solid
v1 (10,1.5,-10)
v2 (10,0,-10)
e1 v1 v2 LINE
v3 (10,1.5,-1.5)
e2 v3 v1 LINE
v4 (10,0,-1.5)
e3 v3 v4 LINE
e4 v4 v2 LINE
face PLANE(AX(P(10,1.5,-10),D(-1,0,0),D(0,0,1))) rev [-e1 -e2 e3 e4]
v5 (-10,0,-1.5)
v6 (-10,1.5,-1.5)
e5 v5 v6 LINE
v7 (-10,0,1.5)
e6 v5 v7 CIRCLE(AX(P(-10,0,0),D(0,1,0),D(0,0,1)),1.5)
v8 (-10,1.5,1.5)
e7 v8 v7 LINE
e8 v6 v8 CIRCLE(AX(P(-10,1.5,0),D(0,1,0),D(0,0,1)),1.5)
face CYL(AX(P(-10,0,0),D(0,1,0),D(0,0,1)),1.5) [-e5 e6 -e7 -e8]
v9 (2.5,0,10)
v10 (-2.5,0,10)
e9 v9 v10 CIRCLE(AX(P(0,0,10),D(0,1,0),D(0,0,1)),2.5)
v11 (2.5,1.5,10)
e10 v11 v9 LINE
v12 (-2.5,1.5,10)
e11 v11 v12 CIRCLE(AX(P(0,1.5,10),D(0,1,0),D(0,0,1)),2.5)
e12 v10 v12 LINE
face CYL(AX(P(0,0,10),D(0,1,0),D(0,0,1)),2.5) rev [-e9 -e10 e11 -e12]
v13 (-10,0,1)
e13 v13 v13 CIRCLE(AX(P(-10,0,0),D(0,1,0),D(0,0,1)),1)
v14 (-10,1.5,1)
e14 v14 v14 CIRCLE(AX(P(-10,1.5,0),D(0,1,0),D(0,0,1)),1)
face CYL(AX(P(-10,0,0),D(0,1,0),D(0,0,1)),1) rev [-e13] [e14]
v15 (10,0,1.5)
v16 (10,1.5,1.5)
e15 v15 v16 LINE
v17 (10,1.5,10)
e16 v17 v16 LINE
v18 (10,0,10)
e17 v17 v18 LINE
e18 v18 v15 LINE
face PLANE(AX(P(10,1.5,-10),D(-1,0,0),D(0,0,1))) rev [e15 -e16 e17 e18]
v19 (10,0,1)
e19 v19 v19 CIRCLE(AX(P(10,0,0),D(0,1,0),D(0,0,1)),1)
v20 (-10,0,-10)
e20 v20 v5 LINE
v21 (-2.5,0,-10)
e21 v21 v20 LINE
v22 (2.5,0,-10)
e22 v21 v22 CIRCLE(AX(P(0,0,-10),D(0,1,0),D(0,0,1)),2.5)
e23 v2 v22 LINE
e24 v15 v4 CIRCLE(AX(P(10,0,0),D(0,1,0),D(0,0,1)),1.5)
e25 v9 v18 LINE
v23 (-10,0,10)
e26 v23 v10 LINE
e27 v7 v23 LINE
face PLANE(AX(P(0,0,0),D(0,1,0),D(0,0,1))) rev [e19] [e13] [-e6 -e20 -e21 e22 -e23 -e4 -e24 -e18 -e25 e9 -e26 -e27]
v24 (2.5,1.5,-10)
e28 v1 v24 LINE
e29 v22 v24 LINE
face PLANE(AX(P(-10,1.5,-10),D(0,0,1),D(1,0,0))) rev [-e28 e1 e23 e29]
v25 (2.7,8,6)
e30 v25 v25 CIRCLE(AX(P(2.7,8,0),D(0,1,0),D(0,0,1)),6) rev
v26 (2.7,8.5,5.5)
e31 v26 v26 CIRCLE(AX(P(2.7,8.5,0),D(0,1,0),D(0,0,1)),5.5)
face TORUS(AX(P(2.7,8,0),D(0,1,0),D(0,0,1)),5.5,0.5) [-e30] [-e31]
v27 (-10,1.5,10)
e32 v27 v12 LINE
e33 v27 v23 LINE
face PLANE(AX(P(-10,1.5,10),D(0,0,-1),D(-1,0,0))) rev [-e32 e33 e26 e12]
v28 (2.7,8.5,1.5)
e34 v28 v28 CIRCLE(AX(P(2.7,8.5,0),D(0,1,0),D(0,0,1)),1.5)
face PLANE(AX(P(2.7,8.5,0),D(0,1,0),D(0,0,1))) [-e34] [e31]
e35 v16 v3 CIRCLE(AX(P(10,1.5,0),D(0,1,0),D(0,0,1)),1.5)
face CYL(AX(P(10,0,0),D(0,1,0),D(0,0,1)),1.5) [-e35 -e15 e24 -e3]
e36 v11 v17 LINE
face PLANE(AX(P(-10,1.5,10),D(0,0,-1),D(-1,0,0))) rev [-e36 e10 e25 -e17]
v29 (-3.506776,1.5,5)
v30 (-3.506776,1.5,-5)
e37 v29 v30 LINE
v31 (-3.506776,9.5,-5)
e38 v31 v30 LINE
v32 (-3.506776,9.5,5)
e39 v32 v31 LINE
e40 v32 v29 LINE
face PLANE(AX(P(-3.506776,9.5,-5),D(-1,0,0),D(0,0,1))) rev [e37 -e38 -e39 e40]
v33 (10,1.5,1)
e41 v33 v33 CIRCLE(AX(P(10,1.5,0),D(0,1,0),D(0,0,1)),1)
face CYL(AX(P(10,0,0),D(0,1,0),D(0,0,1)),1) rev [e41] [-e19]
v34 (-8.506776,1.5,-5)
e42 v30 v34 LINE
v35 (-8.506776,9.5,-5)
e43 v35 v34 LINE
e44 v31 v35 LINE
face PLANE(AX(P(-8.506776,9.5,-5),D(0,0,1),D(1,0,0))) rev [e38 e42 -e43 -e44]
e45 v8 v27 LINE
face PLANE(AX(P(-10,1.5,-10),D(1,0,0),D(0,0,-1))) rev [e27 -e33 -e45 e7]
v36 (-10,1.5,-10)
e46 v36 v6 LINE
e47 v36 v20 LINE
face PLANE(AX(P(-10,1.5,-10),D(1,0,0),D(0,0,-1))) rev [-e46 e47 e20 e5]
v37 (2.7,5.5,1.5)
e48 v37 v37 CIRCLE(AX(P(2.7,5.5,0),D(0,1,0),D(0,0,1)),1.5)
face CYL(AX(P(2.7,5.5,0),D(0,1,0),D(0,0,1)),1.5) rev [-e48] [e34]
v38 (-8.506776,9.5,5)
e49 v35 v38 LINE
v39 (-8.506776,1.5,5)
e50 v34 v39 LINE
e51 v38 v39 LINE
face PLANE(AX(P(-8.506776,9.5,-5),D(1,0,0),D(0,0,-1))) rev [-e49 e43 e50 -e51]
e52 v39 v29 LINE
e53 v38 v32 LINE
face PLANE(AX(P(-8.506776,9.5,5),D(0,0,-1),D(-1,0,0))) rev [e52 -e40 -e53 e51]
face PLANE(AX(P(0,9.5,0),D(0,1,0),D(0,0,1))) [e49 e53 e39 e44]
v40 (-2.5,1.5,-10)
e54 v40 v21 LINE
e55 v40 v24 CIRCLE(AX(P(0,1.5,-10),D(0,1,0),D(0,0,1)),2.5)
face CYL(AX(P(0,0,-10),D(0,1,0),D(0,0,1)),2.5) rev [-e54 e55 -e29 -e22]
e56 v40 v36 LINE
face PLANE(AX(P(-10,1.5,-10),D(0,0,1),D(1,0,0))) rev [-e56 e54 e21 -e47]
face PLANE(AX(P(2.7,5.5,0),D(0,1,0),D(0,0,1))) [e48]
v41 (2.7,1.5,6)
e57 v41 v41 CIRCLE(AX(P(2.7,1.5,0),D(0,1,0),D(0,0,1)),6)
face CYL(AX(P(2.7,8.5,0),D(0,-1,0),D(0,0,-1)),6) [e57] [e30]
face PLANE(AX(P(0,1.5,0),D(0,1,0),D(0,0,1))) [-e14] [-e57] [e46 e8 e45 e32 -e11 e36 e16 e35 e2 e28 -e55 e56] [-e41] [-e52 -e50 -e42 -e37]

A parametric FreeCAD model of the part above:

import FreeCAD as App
import Part
import Sketcher
from FreeCAD import Vector


def edges_at(feature, points):
    """Names of the edges that pass closest to the given points."""
    edges = feature.Shape.Edges
    near = lambda p: min(range(len(edges)), key=lambda i: edges[i].distToShape(Part.Vertex(*p))[0])
    return sorted({f"Edge{near(p) + 1}" for p in points})


def add_polygon(sketch, points):
    """Adds a closed chain of lines whose ends are joined by coincident constraints."""
    first, n = sketch.GeometryCount, len(points)
    for a, b in zip(points, points[1:] + points[:1]):
        sketch.addGeometry(Part.LineSegment(App.Vector(*a, 0), App.Vector(*b, 0)), False)
    for i in range(n):
        sketch.addConstraint(Sketcher.Constraint("Coincident", first + i, 2, first + (i + 1) % n, 1))

doc = App.newDocument("Part")
body = doc.addObject("PartDesign::Body", "Body")

sketch1 = body.newObject("Sketcher::SketchObject", "Sketch")
sketch1.AttachmentSupport = (doc.getObject("XZ_Plane"), [""])
sketch1.MapMode = "FlatFace"
add_polygon(sketch1, [(-10, -10), (-10, 10), (10, 10), (10, -10)])
sketch1.addConstraint([
    Sketcher.Constraint("Vertical", 0),
    Sketcher.Constraint("Horizontal", 1),
    Sketcher.Constraint("Vertical", 2),
    Sketcher.Constraint("Horizontal", 3),
    Sketcher.Constraint("Symmetric", 0, 2, 2, 2, -1, 1),
    Sketcher.Constraint("Equal", 3, 0),
    Sketcher.Constraint("DistanceX", 1, 1, 1, 2, 20.0),
])
pad1 = body.newObject("PartDesign::Pad", "Pad")
pad1.Profile = sketch1
pad1.Length = 1.5
pad1.Reversed = True

sketch2 = body.newObject("Sketcher::SketchObject", "Sketch001")
sketch2.AttachmentSupport = (doc.getObject("XZ_Plane"), [""])
sketch2.MapMode = "FlatFace"
sketch2.AttachmentOffset = App.Placement(Vector(0, 0, -1.5), App.Rotation())
sketch2.addGeometry([
    Part.Circle(Vector(-10, 0, 0), Vector(0, 0, 1), 1.5),
    Part.Circle(Vector(10, 0, 0), Vector(0, 0, 1), 1.5),
], False)
sketch2.addConstraint([
    Sketcher.Constraint("Equal", 0, 1),
    Sketcher.Constraint("Symmetric", 0, 3, 1, 3, -1, 1),
    Sketcher.Constraint("PointOnObject", 0, 3, -1),
    Sketcher.Constraint("Diameter", 0, 3.0),
    Sketcher.Constraint("DistanceX", 0, 3, -1, 1, 10.0),
])
pad2 = body.newObject("PartDesign::Pad", "Pad001")
pad2.Profile = sketch2
pad2.Length = 1.5

sketch3 = body.newObject("Sketcher::SketchObject", "Sketch002")
sketch3.AttachmentSupport = (doc.getObject("XZ_Plane"), [""])
sketch3.MapMode = "FlatFace"
sketch3.AttachmentOffset = App.Placement(Vector(0, 0, -1.5), App.Rotation())
sketch3.addGeometry([
    Part.Circle(Vector(-10, 0, 0), Vector(0, 0, 1), 1),
    Part.Circle(Vector(10, 0, 0), Vector(0, 0, 1), 1),
    Part.Circle(Vector(0, -10, 0), Vector(0, 0, 1), 2.5),
    Part.Circle(Vector(0, 10, 0), Vector(0, 0, 1), 2.5),
], False)
sketch3.addConstraint([
    Sketcher.Constraint("Equal", 0, 1),
    Sketcher.Constraint("Equal", 2, 3),
    Sketcher.Constraint("Symmetric", 0, 3, 1, 3, -1, 1),
    Sketcher.Constraint("Symmetric", 2, 3, 3, 3, -1, 1),
    Sketcher.Constraint("PointOnObject", 0, 3, -1),
    Sketcher.Constraint("PointOnObject", 2, 3, -2),
    Sketcher.Constraint("Diameter", 0, 2.0),
    Sketcher.Constraint("Diameter", 2, 5.0),
    Sketcher.Constraint("DistanceX", 0, 3, -1, 1, 10.0),
    Sketcher.Constraint("DistanceY", 2, 3, -1, 1, 10.0),
])
pocket1 = body.newObject("PartDesign::Pocket", "Pocket")
pocket1.Profile = sketch3
pocket1.Length = 1.5
pocket1.Reversed = True

sketch4 = body.newObject("Sketcher::SketchObject", "Sketch003")
sketch4.AttachmentSupport = (doc.getObject("XZ_Plane"), [""])
sketch4.MapMode = "FlatFace"
sketch4.AttachmentOffset = App.Placement(Vector(0, 0, -1.5), App.Rotation())
add_polygon(sketch4, [(-9, -5), (-9, 5), (-4, 5), (-4, -5)])
sketch4.addConstraint([
    Sketcher.Constraint("Vertical", 0),
    Sketcher.Constraint("Horizontal", 1),
    Sketcher.Constraint("Vertical", 2),
    Sketcher.Constraint("Horizontal", 3),
    Sketcher.Constraint("DistanceX", 1, 1, 1, 2, 5.0),
    Sketcher.Constraint("DistanceY", 0, 1, 0, 2, 10.0),
    Sketcher.Constraint("DistanceY", -1, 1, 0, 2, 5.0),
    Sketcher.Constraint("DistanceX", 0, 2, -1, 1, 8.506776),
])
pad3 = body.newObject("PartDesign::Pad", "Pad002")
pad3.Profile = sketch4
pad3.Length = 8
pad3.Reversed = True

sketch5 = body.newObject("Sketcher::SketchObject", "Sketch004")
sketch5.AttachmentSupport = (doc.getObject("XZ_Plane"), [""])
sketch5.MapMode = "FlatFace"
sketch5.AttachmentOffset = App.Placement(Vector(0, 0, -1.5), App.Rotation())
sketch5.addGeometry(Part.Circle(Vector(3, 0, 0), Vector(0, 0, 1), 6), False)
sketch5.addConstraint([
    Sketcher.Constraint("PointOnObject", 0, 3, -1),
    Sketcher.Constraint("Diameter", 0, 12.0),
    Sketcher.Constraint("DistanceX", -1, 1, 0, 3, 2.7),
])
pad4 = body.newObject("PartDesign::Pad", "Pad003")
pad4.Profile = sketch5
pad4.Length = 7
pad4.Reversed = True
doc.recompute()

fillet = body.newObject("PartDesign::Fillet", "Fillet")
fillet.Base = (pad4, edges_at(pad4, [(-3.3, 8.5, 0)]))
fillet.Radius = 0.5

sketch6 = body.newObject("Sketcher::SketchObject", "Sketch005")
sketch6.AttachmentSupport = (doc.getObject("XZ_Plane"), [""])
sketch6.MapMode = "FlatFace"
sketch6.AttachmentOffset = App.Placement(Vector(0, 0, -8.5), App.Rotation())
sketch6.addGeometry(Part.Circle(Vector(2.7, 0, 0), Vector(0, 0, 1), 1.5), False)
sketch6.addConstraint([
    Sketcher.Constraint("PointOnObject", 0, 3, -1),
    Sketcher.Constraint("Diameter", 0, 3.0),
    Sketcher.Constraint("DistanceX", -1, 1, 0, 3, 2.7),
])
pocket2 = body.newObject("PartDesign::Pocket", "Pocket001")
pocket2.Profile = sketch6
pocket2.Length = 3
pocket2.Reversed = True

doc.recompute()
